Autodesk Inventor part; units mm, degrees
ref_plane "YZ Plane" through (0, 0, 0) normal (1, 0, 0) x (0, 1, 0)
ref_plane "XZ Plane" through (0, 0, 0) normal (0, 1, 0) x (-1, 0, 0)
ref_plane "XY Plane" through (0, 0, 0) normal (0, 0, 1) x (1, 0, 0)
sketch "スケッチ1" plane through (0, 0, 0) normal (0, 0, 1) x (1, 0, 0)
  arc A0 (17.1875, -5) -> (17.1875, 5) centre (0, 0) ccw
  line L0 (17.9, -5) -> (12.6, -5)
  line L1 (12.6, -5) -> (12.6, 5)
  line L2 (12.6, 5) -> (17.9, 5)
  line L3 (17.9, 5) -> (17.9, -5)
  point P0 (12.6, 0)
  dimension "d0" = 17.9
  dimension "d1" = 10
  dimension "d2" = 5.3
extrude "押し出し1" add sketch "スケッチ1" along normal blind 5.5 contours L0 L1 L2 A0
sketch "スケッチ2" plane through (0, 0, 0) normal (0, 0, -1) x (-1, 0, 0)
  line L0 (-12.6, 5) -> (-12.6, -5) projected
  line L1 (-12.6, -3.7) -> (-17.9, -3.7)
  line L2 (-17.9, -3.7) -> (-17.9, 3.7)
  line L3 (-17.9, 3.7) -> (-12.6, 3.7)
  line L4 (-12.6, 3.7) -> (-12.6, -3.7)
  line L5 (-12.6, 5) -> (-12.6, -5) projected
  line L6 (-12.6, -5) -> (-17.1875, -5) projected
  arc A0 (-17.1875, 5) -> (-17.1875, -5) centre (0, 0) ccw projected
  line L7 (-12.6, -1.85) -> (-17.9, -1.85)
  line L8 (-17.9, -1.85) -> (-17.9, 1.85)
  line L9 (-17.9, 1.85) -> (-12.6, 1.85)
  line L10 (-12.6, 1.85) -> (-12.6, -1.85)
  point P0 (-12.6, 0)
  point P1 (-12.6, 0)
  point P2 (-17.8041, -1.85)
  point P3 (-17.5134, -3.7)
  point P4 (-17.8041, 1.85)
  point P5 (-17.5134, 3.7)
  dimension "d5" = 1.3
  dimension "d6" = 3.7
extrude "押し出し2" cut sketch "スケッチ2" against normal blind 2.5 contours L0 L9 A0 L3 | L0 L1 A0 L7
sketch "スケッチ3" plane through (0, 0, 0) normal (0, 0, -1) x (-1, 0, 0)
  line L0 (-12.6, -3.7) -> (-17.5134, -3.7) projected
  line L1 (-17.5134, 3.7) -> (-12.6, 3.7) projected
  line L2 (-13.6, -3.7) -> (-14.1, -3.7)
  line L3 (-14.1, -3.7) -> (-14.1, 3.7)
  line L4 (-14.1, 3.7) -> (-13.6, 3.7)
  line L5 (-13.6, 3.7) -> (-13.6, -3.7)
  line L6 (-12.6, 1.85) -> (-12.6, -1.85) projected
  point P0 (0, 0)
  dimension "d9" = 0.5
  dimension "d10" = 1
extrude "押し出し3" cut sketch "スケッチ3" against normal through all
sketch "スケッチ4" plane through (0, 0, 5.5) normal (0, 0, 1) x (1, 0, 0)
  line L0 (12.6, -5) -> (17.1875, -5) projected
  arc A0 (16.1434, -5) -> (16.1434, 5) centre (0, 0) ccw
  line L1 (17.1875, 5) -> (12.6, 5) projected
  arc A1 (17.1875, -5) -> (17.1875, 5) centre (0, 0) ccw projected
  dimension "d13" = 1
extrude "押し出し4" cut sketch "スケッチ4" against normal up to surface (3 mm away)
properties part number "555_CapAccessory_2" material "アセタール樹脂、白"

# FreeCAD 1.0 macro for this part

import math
import FreeCAD as App
import Part
import Sketcher
Q = App.Units.Quantity

doc = App.newDocument("Part")
body = doc.addObject("PartDesign::Body", "Body")

# Sketch on XY plane
sketch1 = body.newObject("Sketcher::SketchObject", "Sketch")
sketch1.AttachmentSupport = (doc.getObject("XY_Plane"), [""])
sketch1.MapMode = "FlatFace"
sketch1.addGeometry(Part.LineSegment(App.Vector(12.6, -5, 0), App.Vector(17.2, -5, 0)), False)
sketch1.addGeometry(Part.ArcOfCircle(Part.Circle(App.Vector(0, 0, 0), App.Vector(0, 0, 1), 17.9), math.radians(-16), math.radians(16)), False)
sketch1.addGeometry(Part.LineSegment(App.Vector(17.2, 5, 0), App.Vector(12.6, 5, 0)), False)
sketch1.addGeometry(Part.LineSegment(App.Vector(12.6, 5, 0), App.Vector(12.6, -5, 0)), False)
sketch1.addConstraint(Sketcher.Constraint("Coincident", 0, 2, 1, 1))
sketch1.addConstraint(Sketcher.Constraint("Coincident", 1, 2, 2, 1))
sketch1.addConstraint(Sketcher.Constraint("Coincident", 2, 2, 3, 1))
sketch1.addConstraint(Sketcher.Constraint("Coincident", 3, 2, 0, 1))
sketch1.addConstraint(Sketcher.Constraint("Horizontal", 0))
sketch1.addConstraint(Sketcher.Constraint("Horizontal", 2))
sketch1.addConstraint(Sketcher.Constraint("Vertical", 3))
sketch1.addConstraint(Sketcher.Constraint("Coincident", 1, 3, -1, 1))
sketch1.addConstraint(Sketcher.Constraint("Vertical", 0, 2, 1, 2))
sketch1.addConstraint(Sketcher.Constraint("Radius", 1, Q("17.9 mm")))
sketch1.addConstraint(Sketcher.Constraint("DistanceY", 3, 2, 3, 1, Q("10 mm")))
sketch1.addConstraint(Sketcher.Constraint("DistanceX", -1, 1, 2, 2, Q("12.6 mm")))
pad1 = body.newObject("PartDesign::Pad", "Pad")
pad1.Profile = sketch1
pad1.Length = 5.5

# Sketch on XY plane
sketch2 = body.newObject("Sketcher::SketchObject", "Sketch001")
sketch2.AttachmentSupport = (doc.getObject("XY_Plane"), [""])
sketch2.MapMode = "FlatFace"
sketch2.addGeometry(Part.LineSegment(App.Vector(12.6, 1.9, 0), App.Vector(12.6, 3.7, 0)), False)
sketch2.addGeometry(Part.LineSegment(App.Vector(12.6, 3.7, 0), App.Vector(17.5, 3.7, 0)), False)
sketch2.addGeometry(Part.ArcOfCircle(Part.Circle(App.Vector(0, 0, 0), App.Vector(0, 0, 1), 17.9), math.radians(5.93), math.radians(11.93)), False)
sketch2.addGeometry(Part.LineSegment(App.Vector(17.8, 1.9, 0), App.Vector(12.6, 1.9, 0)), False)
sketch2.addGeometry(Part.LineSegment(App.Vector(12.6, -3.7, 0), App.Vector(12.6, -1.9, 0)), False)
sketch2.addGeometry(Part.LineSegment(App.Vector(12.6, -1.9, 0), App.Vector(17.8, -1.9, 0)), False)
sketch2.addGeometry(Part.ArcOfCircle(Part.Circle(App.Vector(0, 0, 0), App.Vector(0, 0, 1), 17.9), math.radians(-11.93), math.radians(-5.93)), False)
sketch2.addGeometry(Part.LineSegment(App.Vector(17.5, -3.7, 0), App.Vector(12.6, -3.7, 0)), False)
sketch2.addConstraint(Sketcher.Constraint("Coincident", 0, 2, 1, 1))
sketch2.addConstraint(Sketcher.Constraint("Coincident", 1, 2, 2, 2))
sketch2.addConstraint(Sketcher.Constraint("Coincident", 2, 1, 3, 1))
sketch2.addConstraint(Sketcher.Constraint("Coincident", 3, 2, 0, 1))
sketch2.addConstraint(Sketcher.Constraint("Coincident", 4, 2, 5, 1))
sketch2.addConstraint(Sketcher.Constraint("Coincident", 5, 2, 6, 2))
sketch2.addConstraint(Sketcher.Constraint("Coincident", 6, 1, 7, 1))
sketch2.addConstraint(Sketcher.Constraint("Coincident", 7, 2, 4, 1))
sketch2.addConstraint(Sketcher.Constraint("Vertical", 0))
sketch2.addConstraint(Sketcher.Constraint("Horizontal", 1))
sketch2.addConstraint(Sketcher.Constraint("Horizontal", 3))
sketch2.addConstraint(Sketcher.Constraint("Vertical", 4))
sketch2.addConstraint(Sketcher.Constraint("Horizontal", 5))
sketch2.addConstraint(Sketcher.Constraint("Horizontal", 7))
sketch2.addConstraint(Sketcher.Constraint("Coincident", 2, 3, -1, 1))
sketch2.addConstraint(Sketcher.Constraint("Coincident", 6, 3, -1, 1))
sketch2.addConstraint(Sketcher.Constraint("Equal", 2, 6))
sketch2.addConstraint(Sketcher.Constraint("Symmetric", 3, 2, 4, 2, -1))
sketch2.addConstraint(Sketcher.Constraint("Vertical", 1, 2, 6, 1))
sketch2.addConstraint(Sketcher.Constraint("DistanceY", -1, 1, 0, 2, Q("3.7 mm")))
sketch2.addConstraint(Sketcher.Constraint("Radius", 2, Q("17.9 mm")))
sketch2.addConstraint(Sketcher.Constraint("DistanceY", 4, 2, 3, 2, Q("3.7 mm")))
sketch2.addConstraint(Sketcher.Constraint("DistanceX", -1, 1, 0, 2, Q("12.6 mm")))
pocket1 = body.newObject("PartDesign::Pocket", "Pocket")
pocket1.Profile = sketch2
pocket1.Length = 2.5
pocket1.Reversed = True

# Sketch on XY plane
sketch3 = body.newObject("Sketcher::SketchObject", "Sketch002")
sketch3.AttachmentSupport = (doc.getObject("XY_Plane"), [""])
sketch3.MapMode = "FlatFace"
sketch3.addGeometry(Part.LineSegment(App.Vector(14.1, -3.7, 0), App.Vector(13.6, -3.7, 0)), False)
sketch3.addGeometry(Part.LineSegment(App.Vector(13.6, -3.7, 0), App.Vector(13.6, 3.7, 0)), False)
sketch3.addGeometry(Part.LineSegment(App.Vector(13.6, 3.7, 0), App.Vector(14.1, 3.7, 0)), False)
sketch3.addGeometry(Part.LineSegment(App.Vector(14.1, 3.7, 0), App.Vector(14.1, -3.7, 0)), False)
sketch3.addConstraint(Sketcher.Constraint("Coincident", 0, 2, 1, 1))
sketch3.addConstraint(Sketcher.Constraint("Coincident", 1, 2, 2, 1))
sketch3.addConstraint(Sketcher.Constraint("Coincident", 2, 2, 3, 1))
sketch3.addConstraint(Sketcher.Constraint("Coincident", 3, 2, 0, 1))
sketch3.addConstraint(Sketcher.Constraint("Horizontal", 0))
sketch3.addConstraint(Sketcher.Constraint("Vertical", 1))
sketch3.addConstraint(Sketcher.Constraint("Horizontal", 2))
sketch3.addConstraint(Sketcher.Constraint("Vertical", 3))
sketch3.addConstraint(Sketcher.Constraint("DistanceX", 0, 2, 0, 1, Q("0.5 mm")))
sketch3.addConstraint(Sketcher.Constraint("DistanceY", 1, 1, 1, 2, Q("7.4 mm")))
sketch3.addConstraint(Sketcher.Constraint("DistanceX", -1, 1, 0, 2, Q("13.6 mm")))
sketch3.addConstraint(Sketcher.Constraint("DistanceY", 0, 2, -1, 1, Q("3.7 mm")))
pocket2 = body.newObject("PartDesign::Pocket", "Pocket001")
pocket2.Profile = sketch3
pocket2.Type = "ThroughAll"
pocket2.Reversed = True

# Sketch on XY plane
sketch4 = body.newObject("Sketcher::SketchObject", "Sketch003")
sketch4.AttachmentSupport = (doc.getObject("XY_Plane"), [""])
sketch4.MapMode = "FlatFace"
sketch4.AttachmentOffset = App.Placement(App.Vector(0, 0, 5.5), App.Rotation())
sketch4.addGeometry(Part.ArcOfCircle(Part.Circle(App.Vector(0, 0, 0), App.Vector(0, 0, 1), 16.9), math.radians(-17), math.radians(17)), False)
sketch4.addGeometry(Part.LineSegment(App.Vector(16.1, -5, 0), App.Vector(17.2, -5, 0)), False)
sketch4.addGeometry(Part.ArcOfCircle(Part.Circle(App.Vector(0, 0, 0), App.Vector(0, 0, 1), 17.9), math.radians(-16), math.radians(16)), False)
sketch4.addGeometry(Part.LineSegment(App.Vector(17.2, 5, 0), App.Vector(16.1, 5, 0)), False)
sketch4.addConstraint(Sketcher.Constraint("Coincident", 0, 1, 1, 1))
sketch4.addConstraint(Sketcher.Constraint("Coincident", 1, 2, 2, 1))
sketch4.addConstraint(Sketcher.Constraint("Coincident", 2, 2, 3, 1))
sketch4.addConstraint(Sketcher.Constraint("Coincident", 3, 2, 0, 2))
sketch4.addConstraint(Sketcher.Constraint("Horizontal", 1))
sketch4.addConstraint(Sketcher.Constraint("Horizontal", 3))
sketch4.addConstraint(Sketcher.Constraint("Coincident", 0, 3, -1, 1))
sketch4.addConstraint(Sketcher.Constraint("Coincident", 2, 3, -1, 1))
sketch4.addConstraint(Sketcher.Constraint("Vertical", 1, 2, 2, 2))
sketch4.addConstraint(Sketcher.Constraint("Radius", 0, Q("16.9 mm")))
sketch4.addConstraint(Sketcher.Constraint("Radius", 2, Q("17.9 mm")))
sketch4.addConstraint(Sketcher.Constraint("DistanceY", 0, 1, -1, 1, Q("5 mm")))
pocket3 = body.newObject("PartDesign::Pocket", "Pocket002")
pocket3.Profile = sketch4
pocket3.Length = 3

doc.recompute()
